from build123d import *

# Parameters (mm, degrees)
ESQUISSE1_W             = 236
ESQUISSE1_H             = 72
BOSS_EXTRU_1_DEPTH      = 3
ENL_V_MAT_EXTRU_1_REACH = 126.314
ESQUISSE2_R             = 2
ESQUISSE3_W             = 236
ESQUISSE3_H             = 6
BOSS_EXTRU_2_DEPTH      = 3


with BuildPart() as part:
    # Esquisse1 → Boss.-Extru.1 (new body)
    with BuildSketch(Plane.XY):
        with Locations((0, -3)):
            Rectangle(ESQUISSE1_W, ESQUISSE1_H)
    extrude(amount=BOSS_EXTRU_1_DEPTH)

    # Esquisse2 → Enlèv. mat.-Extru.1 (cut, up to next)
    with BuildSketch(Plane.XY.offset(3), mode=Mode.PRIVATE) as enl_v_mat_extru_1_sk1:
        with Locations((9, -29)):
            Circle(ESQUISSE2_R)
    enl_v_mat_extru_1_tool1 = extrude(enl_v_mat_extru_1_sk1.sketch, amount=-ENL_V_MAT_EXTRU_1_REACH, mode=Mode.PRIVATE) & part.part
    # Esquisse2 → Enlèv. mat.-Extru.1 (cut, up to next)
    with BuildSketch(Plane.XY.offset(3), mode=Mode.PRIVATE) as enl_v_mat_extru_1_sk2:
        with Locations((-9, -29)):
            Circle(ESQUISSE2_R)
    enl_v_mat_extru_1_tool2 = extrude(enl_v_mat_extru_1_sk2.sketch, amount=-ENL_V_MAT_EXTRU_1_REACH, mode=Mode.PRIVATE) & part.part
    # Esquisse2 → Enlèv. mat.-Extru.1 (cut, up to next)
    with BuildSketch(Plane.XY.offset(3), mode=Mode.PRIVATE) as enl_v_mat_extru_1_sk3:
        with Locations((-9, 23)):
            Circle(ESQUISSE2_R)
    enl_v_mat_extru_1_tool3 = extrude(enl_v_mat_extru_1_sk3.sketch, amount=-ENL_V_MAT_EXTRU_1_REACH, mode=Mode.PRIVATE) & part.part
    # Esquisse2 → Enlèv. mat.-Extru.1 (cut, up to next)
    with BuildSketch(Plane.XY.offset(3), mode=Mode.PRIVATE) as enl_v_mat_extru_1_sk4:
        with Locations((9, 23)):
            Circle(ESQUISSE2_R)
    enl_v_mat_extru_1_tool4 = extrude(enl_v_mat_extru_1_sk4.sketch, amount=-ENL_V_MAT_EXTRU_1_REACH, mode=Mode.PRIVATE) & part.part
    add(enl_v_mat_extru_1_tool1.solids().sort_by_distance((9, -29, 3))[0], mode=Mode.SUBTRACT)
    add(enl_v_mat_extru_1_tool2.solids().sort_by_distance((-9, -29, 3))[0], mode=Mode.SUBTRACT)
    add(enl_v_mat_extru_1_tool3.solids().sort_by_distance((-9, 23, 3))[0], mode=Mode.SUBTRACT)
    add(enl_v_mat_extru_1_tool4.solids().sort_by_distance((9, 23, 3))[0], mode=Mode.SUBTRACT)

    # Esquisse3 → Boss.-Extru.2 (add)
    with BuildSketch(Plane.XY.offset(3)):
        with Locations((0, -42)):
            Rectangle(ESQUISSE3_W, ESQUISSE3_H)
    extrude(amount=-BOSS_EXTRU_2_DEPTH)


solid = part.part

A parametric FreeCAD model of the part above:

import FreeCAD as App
import Part
import Sketcher
from FreeCAD import Vector

doc = App.newDocument("Part")
body = doc.addObject("PartDesign::Body", "Body")

# Sketch on XY plane
sketch1 = body.newObject("Sketcher::SketchObject", "Sketch")
sketch1.AttachmentSupport = (doc.getObject("XY_Plane"), [""])
sketch1.MapMode = "FlatFace"
sketch1.addGeometry(Part.LineSegment(Vector(-118, 33, 0), Vector(-118, -39, 0)), False)
sketch1.addGeometry(Part.LineSegment(Vector(-118, -39, 0), Vector(118, -39, 0)), False)
sketch1.addGeometry(Part.LineSegment(Vector(118, -39, 0), Vector(118, 33, 0)), False)
sketch1.addGeometry(Part.LineSegment(Vector(118, 33, 0), Vector(-118, 33, 0)), False)
sketch1.addConstraint(Sketcher.Constraint("Coincident", 0, 2, 1, 1))
sketch1.addConstraint(Sketcher.Constraint("Coincident", 1, 2, 2, 1))
sketch1.addConstraint(Sketcher.Constraint("Coincident", 2, 2, 3, 1))
sketch1.addConstraint(Sketcher.Constraint("Coincident", 3, 2, 0, 1))
sketch1.addConstraint(Sketcher.Constraint("Vertical", 0))
sketch1.addConstraint(Sketcher.Constraint("Horizontal", 1))
sketch1.addConstraint(Sketcher.Constraint("Vertical", 2))
sketch1.addConstraint(Sketcher.Constraint("Horizontal", 3))
sketch1.addConstraint(Sketcher.Constraint("DistanceX", 1, 1, 1, 2, 236.0))
sketch1.addConstraint(Sketcher.Constraint("DistanceY", 0, 2, 0, 1, 72.0))
sketch1.addConstraint(Sketcher.Constraint("DistanceX", 0, 2, -1, 1, 118.0))
sketch1.addConstraint(Sketcher.Constraint("DistanceY", 0, 2, -1, 1, 39.0))
pad1 = body.newObject("PartDesign::Pad", "Pad")
pad1.Profile = sketch1
pad1.Length = 3

# Sketch on XY plane
sketch2 = body.newObject("Sketcher::SketchObject", "Sketch001")
sketch2.AttachmentSupport = (doc.getObject("XY_Plane"), [""])
sketch2.MapMode = "FlatFace"
sketch2.AttachmentOffset = App.Placement(Vector(0, 0, 3), App.Rotation())
sketch2.addGeometry(Part.Circle(Vector(9, -29, 0), Vector(0, 0, 1), 2), False)
sketch2.addConstraint(Sketcher.Constraint("Diameter", 0, 4.0))
sketch2.addConstraint(Sketcher.Constraint("DistanceX", -1, 1, 0, 3, 9.0))
sketch2.addConstraint(Sketcher.Constraint("DistanceY", 0, 3, -1, 1, 29.0))
pocket1 = body.newObject("PartDesign::Pocket", "Pocket")
pocket1.Profile = sketch2
pocket1.Type = "UpToFirst"

# Sketch on XY plane
sketch3 = body.newObject("Sketcher::SketchObject", "Sketch002")
sketch3.AttachmentSupport = (doc.getObject("XY_Plane"), [""])
sketch3.MapMode = "FlatFace"
sketch3.AttachmentOffset = App.Placement(Vector(0, 0, 3), App.Rotation())
sketch3.addGeometry(Part.Circle(Vector(-9, -29, 0), Vector(0, 0, 1), 2), False)
sketch3.addConstraint(Sketcher.Constraint("Diameter", 0, 4.0))
sketch3.addConstraint(Sketcher.Constraint("DistanceX", 0, 3, -1, 1, 9.0))
sketch3.addConstraint(Sketcher.Constraint("DistanceY", 0, 3, -1, 1, 29.0))
pocket2 = body.newObject("PartDesign::Pocket", "Pocket001")
pocket2.Profile = sketch3
pocket2.Type = "UpToFirst"

# Sketch on XY plane
sketch4 = body.newObject("Sketcher::SketchObject", "Sketch003")
sketch4.AttachmentSupport = (doc.getObject("XY_Plane"), [""])
sketch4.MapMode = "FlatFace"
sketch4.AttachmentOffset = App.Placement(Vector(0, 0, 3), App.Rotation())
sketch4.addGeometry(Part.Circle(Vector(-9, 23, 0), Vector(0, 0, 1), 2), False)
sketch4.addConstraint(Sketcher.Constraint("Diameter", 0, 4.0))
sketch4.addConstraint(Sketcher.Constraint("DistanceX", 0, 3, -1, 1, 9.0))
sketch4.addConstraint(Sketcher.Constraint("DistanceY", -1, 1, 0, 3, 23.0))
pocket3 = body.newObject("PartDesign::Pocket", "Pocket002")
pocket3.Profile = sketch4
pocket3.Type = "UpToFirst"

# Sketch on XY plane
sketch5 = body.newObject("Sketcher::SketchObject", "Sketch004")
sketch5.AttachmentSupport = (doc.getObject("XY_Plane"), [""])
sketch5.MapMode = "FlatFace"
sketch5.AttachmentOffset = App.Placement(Vector(0, 0, 3), App.Rotation())
sketch5.addGeometry(Part.Circle(Vector(9, 23, 0), Vector(0, 0, 1), 2), False)
sketch5.addConstraint(Sketcher.Constraint("Diameter", 0, 4.0))
sketch5.addConstraint(Sketcher.Constraint("DistanceX", -1, 1, 0, 3, 9.0))
sketch5.addConstraint(Sketcher.Constraint("DistanceY", -1, 1, 0, 3, 23.0))
pocket4 = body.newObject("PartDesign::Pocket", "Pocket003")
pocket4.Profile = sketch5
pocket4.Type = "UpToFirst"

# Sketch on XY plane
sketch6 = body.newObject("Sketcher::SketchObject", "Sketch005")
sketch6.AttachmentSupport = (doc.getObject("XY_Plane"), [""])
sketch6.MapMode = "FlatFace"
sketch6.AttachmentOffset = App.Placement(Vector(0, 0, 3), App.Rotation())
sketch6.addGeometry(Part.LineSegment(Vector(-118, -39, 0), Vector(-118, -45, 0)), False)
sketch6.addGeometry(Part.LineSegment(Vector(-118, -45, 0), Vector(118, -45, 0)), False)
sketch6.addGeometry(Part.LineSegment(Vector(118, -45, 0), Vector(118, -39, 0)), False)
sketch6.addGeometry(Part.LineSegment(Vector(118, -39, 0), Vector(-118, -39, 0)), False)
sketch6.addConstraint(Sketcher.Constraint("Coincident", 0, 2, 1, 1))
sketch6.addConstraint(Sketcher.Constraint("Coincident", 1, 2, 2, 1))
sketch6.addConstraint(Sketcher.Constraint("Coincident", 2, 2, 3, 1))
sketch6.addConstraint(Sketcher.Constraint("Coincident", 3, 2, 0, 1))
sketch6.addConstraint(Sketcher.Constraint("Vertical", 0))
sketch6.addConstraint(Sketcher.Constraint("Horizontal", 1))
sketch6.addConstraint(Sketcher.Constraint("Vertical", 2))
sketch6.addConstraint(Sketcher.Constraint("Horizontal", 3))
sketch6.addConstraint(Sketcher.Constraint("DistanceX", 1, 1, 1, 2, 236.0))
sketch6.addConstraint(Sketcher.Constraint("DistanceY", 0, 2, 0, 1, 6.0))
sketch6.addConstraint(Sketcher.Constraint("DistanceX", 0, 2, -1, 1, 118.0))
sketch6.addConstraint(Sketcher.Constraint("DistanceY", 0, 2, -1, 1, 45.0))
pad2 = body.newObject("PartDesign::Pad", "Pad001")
pad2.Profile = sketch6
pad2.Length = 3
pad2.Reversed = True

doc.recompute()
